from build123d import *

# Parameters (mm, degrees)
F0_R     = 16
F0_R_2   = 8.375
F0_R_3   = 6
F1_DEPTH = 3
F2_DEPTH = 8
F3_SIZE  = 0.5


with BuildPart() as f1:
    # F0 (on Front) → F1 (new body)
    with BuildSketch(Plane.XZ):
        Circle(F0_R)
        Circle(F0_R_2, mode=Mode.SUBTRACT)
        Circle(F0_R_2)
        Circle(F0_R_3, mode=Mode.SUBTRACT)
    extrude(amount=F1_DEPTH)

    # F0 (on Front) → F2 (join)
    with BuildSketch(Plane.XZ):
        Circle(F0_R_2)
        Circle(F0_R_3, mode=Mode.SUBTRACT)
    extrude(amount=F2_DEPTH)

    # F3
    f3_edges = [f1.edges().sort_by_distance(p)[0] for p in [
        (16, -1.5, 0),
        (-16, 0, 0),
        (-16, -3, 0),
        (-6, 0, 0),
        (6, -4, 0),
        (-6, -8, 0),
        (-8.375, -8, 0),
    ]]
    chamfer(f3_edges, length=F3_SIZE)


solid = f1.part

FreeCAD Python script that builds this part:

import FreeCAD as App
import Part
import Sketcher


def edges_at(feature, points):
    """Names of the edges that pass closest to the given points."""
    edges = feature.Shape.Edges
    near = lambda p: min(range(len(edges)), key=lambda i: edges[i].distToShape(Part.Vertex(*p))[0])
    return sorted({f"Edge{near(p) + 1}" for p in points})

doc = App.newDocument("Part")
params = doc.addObject("Spreadsheet::Sheet", "Params")
for row, (alias, value) in enumerate([
    ("sketch1_diameter", "32 mm"),
    ("sketch1_diameter2", "12 mm"),
    ("pad1_length", "3 mm"),
    ("sketch2_diameter", "12 mm"),
    ("sketch2_diameter2", "16.75 mm"),
    ("pad2_length", "8 mm"),
    ("chamfer_size", "0.5 mm"),
], start=1):
    params.set(f"A{row}", alias)
    params.set(f"B{row}", "=" + value)
    params.setAlias(f"B{row}", alias)

body = doc.addObject("PartDesign::Body", "Body")

sketch1 = doc.addObject("Sketcher::SketchObject", "Sketch")
body.addObject(sketch1)
sketch1.AttachmentSupport = (doc.XZ_Plane, [""])
sketch1.MapMode = "FlatFace"
sketch1.addGeometry([
    Part.Circle(App.Vector(0, 0, 0), App.Vector(0, 0, 1), 16),
    Part.Circle(App.Vector(0, 0, 0), App.Vector(0, 0, 1), 6),
], False)
sketch1.addConstraint([
    Sketcher.Constraint("Coincident", 0, 3, -1, 1),
    Sketcher.Constraint("Coincident", 1, 3, -1, 1),
    Sketcher.Constraint("Diameter", 0, 32.0),
    Sketcher.Constraint("Diameter", 1, 12.0),
])
sketch1.setExpression("Constraints[2]", "Params.sketch1_diameter")
sketch1.setExpression("Constraints[3]", "Params.sketch1_diameter2")
pad1 = doc.addObject("PartDesign::Pad", "Pad")
body.addObject(pad1)
pad1.Profile = sketch1
pad1.setExpression("Length", "Params.pad1_length")

sketch2 = doc.addObject("Sketcher::SketchObject", "Sketch001")
body.addObject(sketch2)
sketch2.AttachmentSupport = (doc.XZ_Plane, [""])
sketch2.MapMode = "FlatFace"
sketch2.addGeometry([
    Part.Circle(App.Vector(0, 0, 0), App.Vector(0, 0, 1), 8.375),
    Part.Circle(App.Vector(0, 0, 0), App.Vector(0, 0, 1), 6),
], False)
sketch2.addConstraint([
    Sketcher.Constraint("Coincident", 0, 3, -1, 1),
    Sketcher.Constraint("Coincident", 1, 3, -1, 1),
    Sketcher.Constraint("Diameter", 1, 12.0),
    Sketcher.Constraint("Diameter", 0, 16.75),
])
sketch2.setExpression("Constraints[2]", "Params.sketch2_diameter")
sketch2.setExpression("Constraints[3]", "Params.sketch2_diameter2")
pad2 = doc.addObject("PartDesign::Pad", "Pad001")
body.addObject(pad2)
pad2.Profile = sketch2
pad2.setExpression("Length", "Params.pad2_length")
doc.recompute()

chamfer = doc.addObject("PartDesign::Chamfer", "Chamfer")
body.addObject(chamfer)
chamfer.Base = (pad2, edges_at(pad2, [
    (16, -1.5, 0),
    (-16, 0, 0),
    (-16, -3, 0),
    (-6, 0, 0),
    (6, -4, 0),
    (-6, -8, 0),
    (-8.375, -8, 0),
]))
chamfer.setExpression("Size", "Params.chamfer_size")

doc.recompute()
